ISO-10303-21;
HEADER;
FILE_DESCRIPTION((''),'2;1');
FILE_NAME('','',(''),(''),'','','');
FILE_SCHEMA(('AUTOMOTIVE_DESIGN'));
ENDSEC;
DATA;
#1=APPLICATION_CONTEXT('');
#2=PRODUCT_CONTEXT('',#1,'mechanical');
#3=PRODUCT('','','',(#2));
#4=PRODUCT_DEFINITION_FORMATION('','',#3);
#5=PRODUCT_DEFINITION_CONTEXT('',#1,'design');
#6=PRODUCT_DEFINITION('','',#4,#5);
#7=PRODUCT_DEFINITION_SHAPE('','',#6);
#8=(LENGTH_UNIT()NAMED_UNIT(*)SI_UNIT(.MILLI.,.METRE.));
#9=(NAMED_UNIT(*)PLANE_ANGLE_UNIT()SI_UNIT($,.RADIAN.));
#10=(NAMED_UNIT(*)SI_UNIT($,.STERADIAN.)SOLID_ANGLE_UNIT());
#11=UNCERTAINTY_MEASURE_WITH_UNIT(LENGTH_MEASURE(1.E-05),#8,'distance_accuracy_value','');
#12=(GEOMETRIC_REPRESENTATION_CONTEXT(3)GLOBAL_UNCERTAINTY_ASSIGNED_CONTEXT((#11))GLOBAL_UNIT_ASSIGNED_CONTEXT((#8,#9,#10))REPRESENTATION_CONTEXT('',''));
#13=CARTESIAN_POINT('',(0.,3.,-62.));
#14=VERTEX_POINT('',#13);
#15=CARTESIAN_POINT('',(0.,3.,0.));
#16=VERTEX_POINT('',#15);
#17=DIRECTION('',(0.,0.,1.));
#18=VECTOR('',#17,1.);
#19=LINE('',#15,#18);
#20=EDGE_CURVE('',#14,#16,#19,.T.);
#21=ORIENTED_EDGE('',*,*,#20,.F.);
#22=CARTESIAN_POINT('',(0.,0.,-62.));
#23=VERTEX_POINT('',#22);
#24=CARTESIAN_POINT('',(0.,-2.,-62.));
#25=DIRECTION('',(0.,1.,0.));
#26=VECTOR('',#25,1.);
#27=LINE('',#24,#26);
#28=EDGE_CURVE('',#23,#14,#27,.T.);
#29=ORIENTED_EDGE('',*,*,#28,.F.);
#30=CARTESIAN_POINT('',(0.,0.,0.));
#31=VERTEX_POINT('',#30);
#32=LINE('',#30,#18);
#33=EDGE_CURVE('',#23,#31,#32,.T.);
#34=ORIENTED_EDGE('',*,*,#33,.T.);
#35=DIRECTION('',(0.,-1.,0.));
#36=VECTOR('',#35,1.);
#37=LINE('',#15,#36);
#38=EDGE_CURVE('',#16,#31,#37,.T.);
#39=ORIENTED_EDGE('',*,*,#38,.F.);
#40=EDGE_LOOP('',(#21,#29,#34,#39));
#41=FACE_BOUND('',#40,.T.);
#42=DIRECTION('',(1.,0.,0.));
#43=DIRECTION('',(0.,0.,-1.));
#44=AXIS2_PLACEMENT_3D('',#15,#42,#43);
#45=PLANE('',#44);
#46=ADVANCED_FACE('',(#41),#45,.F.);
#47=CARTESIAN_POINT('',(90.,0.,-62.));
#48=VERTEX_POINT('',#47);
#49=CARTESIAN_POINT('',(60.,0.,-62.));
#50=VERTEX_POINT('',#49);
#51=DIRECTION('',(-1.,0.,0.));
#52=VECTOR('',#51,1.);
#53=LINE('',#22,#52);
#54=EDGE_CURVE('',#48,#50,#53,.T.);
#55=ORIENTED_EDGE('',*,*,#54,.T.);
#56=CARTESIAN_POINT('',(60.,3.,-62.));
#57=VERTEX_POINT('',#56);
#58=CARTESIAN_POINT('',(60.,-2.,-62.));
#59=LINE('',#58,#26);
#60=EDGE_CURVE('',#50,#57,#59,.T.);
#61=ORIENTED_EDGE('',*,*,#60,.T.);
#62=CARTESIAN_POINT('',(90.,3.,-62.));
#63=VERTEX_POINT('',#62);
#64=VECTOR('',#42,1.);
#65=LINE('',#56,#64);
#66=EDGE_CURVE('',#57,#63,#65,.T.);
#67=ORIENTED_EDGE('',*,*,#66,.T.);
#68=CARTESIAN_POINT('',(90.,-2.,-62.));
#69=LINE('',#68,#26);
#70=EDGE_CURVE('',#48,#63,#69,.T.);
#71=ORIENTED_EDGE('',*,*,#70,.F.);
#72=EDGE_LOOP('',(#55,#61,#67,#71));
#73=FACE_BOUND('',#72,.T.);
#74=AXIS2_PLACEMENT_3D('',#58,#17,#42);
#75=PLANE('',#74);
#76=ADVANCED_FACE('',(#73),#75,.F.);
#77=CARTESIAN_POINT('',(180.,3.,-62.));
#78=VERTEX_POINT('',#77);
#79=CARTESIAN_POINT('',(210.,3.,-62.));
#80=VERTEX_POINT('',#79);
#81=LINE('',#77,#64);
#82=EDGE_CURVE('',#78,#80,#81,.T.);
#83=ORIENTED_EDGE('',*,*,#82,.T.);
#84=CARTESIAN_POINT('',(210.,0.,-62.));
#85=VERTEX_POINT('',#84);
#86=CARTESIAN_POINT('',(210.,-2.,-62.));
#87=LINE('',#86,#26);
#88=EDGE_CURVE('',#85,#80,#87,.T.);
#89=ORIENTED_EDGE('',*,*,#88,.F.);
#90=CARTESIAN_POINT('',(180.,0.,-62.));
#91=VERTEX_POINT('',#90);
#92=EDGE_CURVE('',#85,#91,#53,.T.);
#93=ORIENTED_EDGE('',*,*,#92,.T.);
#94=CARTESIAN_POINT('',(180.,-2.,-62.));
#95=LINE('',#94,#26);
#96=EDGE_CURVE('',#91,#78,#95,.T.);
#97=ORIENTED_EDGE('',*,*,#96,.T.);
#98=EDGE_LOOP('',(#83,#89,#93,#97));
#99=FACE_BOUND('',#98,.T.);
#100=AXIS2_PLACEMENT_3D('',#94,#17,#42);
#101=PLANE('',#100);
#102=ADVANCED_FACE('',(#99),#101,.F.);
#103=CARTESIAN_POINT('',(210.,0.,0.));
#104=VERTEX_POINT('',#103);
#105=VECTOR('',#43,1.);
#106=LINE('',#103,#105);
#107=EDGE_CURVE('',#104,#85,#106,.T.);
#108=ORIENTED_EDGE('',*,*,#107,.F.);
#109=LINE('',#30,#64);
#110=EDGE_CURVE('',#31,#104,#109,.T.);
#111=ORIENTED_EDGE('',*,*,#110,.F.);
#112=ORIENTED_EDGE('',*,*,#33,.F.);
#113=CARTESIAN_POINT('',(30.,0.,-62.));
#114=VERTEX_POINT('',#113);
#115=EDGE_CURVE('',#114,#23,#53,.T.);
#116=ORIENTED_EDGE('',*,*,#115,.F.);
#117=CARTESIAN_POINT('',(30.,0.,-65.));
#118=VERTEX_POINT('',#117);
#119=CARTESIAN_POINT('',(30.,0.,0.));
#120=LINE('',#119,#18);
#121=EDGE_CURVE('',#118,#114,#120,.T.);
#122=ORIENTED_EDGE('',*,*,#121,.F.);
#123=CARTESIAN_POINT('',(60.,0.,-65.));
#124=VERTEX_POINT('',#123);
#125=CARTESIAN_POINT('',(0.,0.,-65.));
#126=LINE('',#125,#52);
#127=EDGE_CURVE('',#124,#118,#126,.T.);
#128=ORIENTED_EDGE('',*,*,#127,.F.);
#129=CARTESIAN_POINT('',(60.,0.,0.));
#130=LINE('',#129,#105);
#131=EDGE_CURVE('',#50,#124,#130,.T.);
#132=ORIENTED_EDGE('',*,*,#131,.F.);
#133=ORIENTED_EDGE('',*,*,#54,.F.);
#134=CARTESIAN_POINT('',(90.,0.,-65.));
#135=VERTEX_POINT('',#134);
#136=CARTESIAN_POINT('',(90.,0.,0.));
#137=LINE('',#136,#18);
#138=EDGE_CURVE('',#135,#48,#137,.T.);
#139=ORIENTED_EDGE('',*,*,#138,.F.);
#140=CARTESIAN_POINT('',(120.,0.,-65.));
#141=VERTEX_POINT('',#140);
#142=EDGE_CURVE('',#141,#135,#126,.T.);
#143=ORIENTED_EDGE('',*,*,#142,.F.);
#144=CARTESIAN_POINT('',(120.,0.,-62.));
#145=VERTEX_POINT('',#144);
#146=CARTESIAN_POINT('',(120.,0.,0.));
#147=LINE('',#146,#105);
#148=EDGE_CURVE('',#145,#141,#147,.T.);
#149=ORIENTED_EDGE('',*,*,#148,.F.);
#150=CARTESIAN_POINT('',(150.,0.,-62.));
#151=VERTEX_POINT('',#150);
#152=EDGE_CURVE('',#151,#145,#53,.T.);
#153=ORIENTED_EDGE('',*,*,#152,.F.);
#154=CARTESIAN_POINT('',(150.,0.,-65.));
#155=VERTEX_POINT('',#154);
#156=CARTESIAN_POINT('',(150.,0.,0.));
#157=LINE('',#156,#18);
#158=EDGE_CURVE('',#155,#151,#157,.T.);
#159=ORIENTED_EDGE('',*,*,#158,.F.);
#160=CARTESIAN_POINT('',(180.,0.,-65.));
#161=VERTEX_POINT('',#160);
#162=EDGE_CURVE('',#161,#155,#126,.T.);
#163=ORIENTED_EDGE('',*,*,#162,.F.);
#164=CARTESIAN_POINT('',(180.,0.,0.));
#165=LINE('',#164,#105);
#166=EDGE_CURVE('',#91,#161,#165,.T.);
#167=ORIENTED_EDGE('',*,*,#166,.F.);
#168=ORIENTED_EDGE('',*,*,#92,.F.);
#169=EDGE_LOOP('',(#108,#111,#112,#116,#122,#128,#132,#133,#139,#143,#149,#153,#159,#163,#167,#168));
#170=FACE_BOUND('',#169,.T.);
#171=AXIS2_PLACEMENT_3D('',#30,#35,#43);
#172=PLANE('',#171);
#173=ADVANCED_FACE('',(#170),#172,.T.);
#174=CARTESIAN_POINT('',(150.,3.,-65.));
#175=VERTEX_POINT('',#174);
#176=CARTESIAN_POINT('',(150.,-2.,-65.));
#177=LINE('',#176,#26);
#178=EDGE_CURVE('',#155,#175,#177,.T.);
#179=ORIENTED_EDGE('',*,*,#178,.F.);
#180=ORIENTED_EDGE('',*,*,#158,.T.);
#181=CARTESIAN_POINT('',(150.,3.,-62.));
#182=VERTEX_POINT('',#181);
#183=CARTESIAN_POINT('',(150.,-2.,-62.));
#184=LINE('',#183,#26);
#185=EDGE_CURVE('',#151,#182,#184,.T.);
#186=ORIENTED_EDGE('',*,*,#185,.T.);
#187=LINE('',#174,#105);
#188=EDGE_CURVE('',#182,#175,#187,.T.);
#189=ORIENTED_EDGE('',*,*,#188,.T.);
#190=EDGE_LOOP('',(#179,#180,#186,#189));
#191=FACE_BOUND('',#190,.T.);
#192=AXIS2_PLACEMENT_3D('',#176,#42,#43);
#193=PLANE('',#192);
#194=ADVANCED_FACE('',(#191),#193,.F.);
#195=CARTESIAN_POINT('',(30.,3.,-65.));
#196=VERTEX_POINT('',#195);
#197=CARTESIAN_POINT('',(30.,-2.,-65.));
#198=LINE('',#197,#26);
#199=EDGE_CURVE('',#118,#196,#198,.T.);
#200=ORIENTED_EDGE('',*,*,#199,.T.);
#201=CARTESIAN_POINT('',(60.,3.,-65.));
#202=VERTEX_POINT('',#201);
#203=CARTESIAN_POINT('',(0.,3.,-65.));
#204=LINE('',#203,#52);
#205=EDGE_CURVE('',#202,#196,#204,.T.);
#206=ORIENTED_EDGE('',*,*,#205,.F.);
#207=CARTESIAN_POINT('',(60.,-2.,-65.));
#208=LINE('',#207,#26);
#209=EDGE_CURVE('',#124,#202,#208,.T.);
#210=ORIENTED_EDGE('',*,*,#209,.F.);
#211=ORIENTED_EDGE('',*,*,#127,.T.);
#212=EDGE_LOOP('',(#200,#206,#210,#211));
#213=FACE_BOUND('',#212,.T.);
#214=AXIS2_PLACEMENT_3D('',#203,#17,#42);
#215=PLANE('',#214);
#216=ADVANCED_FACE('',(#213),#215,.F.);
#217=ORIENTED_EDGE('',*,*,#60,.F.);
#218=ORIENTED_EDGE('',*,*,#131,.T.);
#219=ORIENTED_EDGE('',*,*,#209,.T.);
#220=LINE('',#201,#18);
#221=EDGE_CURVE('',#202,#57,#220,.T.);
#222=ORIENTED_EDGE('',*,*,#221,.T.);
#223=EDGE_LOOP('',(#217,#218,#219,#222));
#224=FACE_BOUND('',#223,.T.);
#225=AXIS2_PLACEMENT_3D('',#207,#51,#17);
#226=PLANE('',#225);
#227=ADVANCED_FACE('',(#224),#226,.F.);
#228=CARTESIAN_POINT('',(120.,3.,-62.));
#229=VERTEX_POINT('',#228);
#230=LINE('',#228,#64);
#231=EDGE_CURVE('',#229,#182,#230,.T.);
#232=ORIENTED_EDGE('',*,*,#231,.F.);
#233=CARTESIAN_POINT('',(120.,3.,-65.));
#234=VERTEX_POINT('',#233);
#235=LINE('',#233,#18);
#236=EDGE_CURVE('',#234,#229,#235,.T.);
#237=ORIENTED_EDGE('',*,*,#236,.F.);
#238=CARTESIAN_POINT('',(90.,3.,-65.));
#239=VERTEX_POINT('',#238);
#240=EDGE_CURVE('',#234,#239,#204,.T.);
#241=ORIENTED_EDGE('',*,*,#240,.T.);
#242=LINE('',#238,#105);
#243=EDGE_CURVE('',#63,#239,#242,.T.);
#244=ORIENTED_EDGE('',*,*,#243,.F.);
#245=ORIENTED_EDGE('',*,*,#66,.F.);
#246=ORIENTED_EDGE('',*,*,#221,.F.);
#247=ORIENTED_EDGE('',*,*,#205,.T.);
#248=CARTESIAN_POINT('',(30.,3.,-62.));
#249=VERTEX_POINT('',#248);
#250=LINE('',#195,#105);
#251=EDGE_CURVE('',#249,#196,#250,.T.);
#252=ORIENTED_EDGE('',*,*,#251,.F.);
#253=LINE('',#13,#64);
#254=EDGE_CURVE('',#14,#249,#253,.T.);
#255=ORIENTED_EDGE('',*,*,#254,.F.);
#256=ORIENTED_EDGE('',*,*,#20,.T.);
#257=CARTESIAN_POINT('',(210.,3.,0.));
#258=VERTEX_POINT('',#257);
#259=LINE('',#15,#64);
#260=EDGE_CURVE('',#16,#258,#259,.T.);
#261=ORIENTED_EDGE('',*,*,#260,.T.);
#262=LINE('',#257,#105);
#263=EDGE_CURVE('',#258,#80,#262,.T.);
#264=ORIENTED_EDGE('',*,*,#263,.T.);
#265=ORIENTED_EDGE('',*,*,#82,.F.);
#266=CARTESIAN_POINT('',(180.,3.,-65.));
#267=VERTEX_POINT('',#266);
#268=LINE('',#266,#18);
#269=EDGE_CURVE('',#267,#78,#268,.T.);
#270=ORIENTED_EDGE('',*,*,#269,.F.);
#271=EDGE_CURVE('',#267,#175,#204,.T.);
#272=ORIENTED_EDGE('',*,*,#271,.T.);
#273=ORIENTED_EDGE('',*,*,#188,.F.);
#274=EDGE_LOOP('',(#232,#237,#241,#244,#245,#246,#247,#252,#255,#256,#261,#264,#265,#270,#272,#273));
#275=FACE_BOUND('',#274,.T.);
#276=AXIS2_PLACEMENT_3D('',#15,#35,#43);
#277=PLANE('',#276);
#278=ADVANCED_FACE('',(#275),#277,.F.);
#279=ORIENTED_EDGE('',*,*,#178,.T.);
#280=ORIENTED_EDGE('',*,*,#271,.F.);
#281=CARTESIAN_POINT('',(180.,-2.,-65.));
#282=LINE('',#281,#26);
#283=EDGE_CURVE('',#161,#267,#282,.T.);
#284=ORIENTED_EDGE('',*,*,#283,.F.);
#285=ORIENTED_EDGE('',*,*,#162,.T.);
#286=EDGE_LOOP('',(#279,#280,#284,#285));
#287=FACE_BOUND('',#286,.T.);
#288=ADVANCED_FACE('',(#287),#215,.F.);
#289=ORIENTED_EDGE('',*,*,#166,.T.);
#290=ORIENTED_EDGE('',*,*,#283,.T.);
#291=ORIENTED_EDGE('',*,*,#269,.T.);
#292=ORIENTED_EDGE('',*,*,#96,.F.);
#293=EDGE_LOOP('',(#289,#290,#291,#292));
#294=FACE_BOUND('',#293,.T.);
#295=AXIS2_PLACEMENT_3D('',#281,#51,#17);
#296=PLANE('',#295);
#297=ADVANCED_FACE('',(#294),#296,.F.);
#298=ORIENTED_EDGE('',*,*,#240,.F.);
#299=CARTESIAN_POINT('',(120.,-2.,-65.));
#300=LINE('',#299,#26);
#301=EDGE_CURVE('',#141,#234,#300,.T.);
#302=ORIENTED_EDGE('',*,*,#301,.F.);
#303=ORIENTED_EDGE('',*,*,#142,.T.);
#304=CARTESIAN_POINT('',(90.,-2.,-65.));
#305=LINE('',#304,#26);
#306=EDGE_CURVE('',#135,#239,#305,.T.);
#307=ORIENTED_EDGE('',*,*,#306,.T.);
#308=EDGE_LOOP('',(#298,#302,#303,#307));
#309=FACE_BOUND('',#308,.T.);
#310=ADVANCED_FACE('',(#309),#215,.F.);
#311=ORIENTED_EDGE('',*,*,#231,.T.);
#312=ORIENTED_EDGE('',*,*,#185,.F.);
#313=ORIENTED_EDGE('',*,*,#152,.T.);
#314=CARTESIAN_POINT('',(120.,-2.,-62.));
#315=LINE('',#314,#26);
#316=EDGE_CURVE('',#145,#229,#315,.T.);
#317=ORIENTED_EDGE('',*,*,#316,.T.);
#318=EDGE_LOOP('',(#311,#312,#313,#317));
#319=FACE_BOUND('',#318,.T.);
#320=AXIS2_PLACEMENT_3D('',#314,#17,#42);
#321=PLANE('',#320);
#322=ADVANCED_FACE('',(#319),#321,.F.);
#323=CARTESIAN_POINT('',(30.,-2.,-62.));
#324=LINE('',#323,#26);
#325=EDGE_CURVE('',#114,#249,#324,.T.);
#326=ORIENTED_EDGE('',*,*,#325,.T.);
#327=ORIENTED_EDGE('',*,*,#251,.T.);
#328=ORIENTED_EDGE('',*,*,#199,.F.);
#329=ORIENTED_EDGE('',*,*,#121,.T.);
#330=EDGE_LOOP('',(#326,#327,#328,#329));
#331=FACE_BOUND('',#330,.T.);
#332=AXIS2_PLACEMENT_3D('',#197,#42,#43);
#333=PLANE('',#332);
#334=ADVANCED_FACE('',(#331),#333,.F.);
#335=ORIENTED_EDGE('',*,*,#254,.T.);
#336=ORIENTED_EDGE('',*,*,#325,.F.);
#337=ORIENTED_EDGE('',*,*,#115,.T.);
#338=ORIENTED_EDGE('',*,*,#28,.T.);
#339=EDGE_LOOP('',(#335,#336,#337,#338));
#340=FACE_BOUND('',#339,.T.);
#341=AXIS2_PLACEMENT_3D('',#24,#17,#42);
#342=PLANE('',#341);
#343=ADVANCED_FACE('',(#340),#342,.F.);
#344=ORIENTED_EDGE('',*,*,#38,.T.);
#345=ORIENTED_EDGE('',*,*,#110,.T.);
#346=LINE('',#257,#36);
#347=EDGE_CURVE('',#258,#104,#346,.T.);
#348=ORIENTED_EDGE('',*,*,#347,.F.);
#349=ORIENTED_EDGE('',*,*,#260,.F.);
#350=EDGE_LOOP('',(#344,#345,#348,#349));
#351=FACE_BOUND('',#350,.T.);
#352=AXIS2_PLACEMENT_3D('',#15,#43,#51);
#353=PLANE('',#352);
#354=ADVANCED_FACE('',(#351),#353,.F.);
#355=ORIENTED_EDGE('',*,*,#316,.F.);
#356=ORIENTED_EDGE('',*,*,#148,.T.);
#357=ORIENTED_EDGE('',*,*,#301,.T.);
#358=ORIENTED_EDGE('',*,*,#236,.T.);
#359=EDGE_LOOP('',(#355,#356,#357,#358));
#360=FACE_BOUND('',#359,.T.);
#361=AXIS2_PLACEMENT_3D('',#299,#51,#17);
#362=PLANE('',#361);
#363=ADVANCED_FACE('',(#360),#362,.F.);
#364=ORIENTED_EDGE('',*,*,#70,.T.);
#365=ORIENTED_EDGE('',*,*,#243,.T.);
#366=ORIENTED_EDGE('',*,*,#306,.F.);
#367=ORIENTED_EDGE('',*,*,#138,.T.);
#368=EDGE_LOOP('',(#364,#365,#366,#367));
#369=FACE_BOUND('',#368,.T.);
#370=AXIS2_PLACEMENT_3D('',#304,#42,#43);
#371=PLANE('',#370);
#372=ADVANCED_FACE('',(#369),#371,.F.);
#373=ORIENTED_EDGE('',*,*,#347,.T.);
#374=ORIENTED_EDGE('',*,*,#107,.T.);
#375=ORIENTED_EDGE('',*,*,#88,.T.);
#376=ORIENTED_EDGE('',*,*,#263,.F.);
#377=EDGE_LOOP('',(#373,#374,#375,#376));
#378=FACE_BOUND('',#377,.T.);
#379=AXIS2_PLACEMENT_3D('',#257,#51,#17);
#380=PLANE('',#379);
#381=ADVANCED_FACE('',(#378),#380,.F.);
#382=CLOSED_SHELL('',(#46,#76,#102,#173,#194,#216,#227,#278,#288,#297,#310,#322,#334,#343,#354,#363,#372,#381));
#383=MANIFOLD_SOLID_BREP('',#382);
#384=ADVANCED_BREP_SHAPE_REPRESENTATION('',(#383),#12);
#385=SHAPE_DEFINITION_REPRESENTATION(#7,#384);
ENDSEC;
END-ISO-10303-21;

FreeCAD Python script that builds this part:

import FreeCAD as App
import Part
import Sketcher
from FreeCAD import Vector


def add_polygon(sketch, points):
    """Adds a closed chain of lines whose ends are joined by coincident constraints."""
    first, n = sketch.GeometryCount, len(points)
    for a, b in zip(points, points[1:] + points[:1]):
        sketch.addGeometry(Part.LineSegment(App.Vector(*a, 0), App.Vector(*b, 0)), False)
    for i in range(n):
        sketch.addConstraint(Sketcher.Constraint("Coincident", first + i, 2, first + (i + 1) % n, 1))

doc = App.newDocument("Part")
params = doc.addObject("Spreadsheet::Sheet", "Params")
for row, (alias, value) in enumerate([
    ("sketch1_width", "210 mm"),
    ("sketch1_height", "65 mm"),
    ("pad1_length", "3 mm"),
    ("sketch2_width", "30 mm"),
    ("sketch2_height", "3 mm"),
    ("pocket1_length", "5 mm"),
], start=1):
    params.set(f"A{row}", alias)
    params.set(f"B{row}", "=" + value)
    params.setAlias(f"B{row}", alias)

body = doc.addObject("PartDesign::Body", "Body")

# Sketch on XZ plane
sketch1 = body.newObject("Sketcher::SketchObject", "Sketch")
sketch1.AttachmentSupport = (doc.getObject("XZ_Plane"), [""])
sketch1.MapMode = "FlatFace"
add_polygon(sketch1, [(0, -65), (0, 0), (210, 0), (210, -65)])  # lines 0-3
sketch1.addConstraint([
    Sketcher.Constraint("Vertical", 0),
    Sketcher.Constraint("Horizontal", 1),
    Sketcher.Constraint("Vertical", 2),
    Sketcher.Constraint("Horizontal", 3),
    Sketcher.Constraint("Coincident", 0, 2, -1, 1),
    Sketcher.Constraint("DistanceX", 1, 1, 1, 2, 210.0),
    Sketcher.Constraint("DistanceY", 0, 1, 0, 2, 65.0),
])
sketch1.setExpression("Constraints[9]", "Params.sketch1_width")
sketch1.setExpression("Constraints[10]", "Params.sketch1_height")
pad1 = body.newObject("PartDesign::Pad", "Pad")
pad1.Profile = sketch1
pad1.setExpression("Length", "Params.pad1_length")
pad1.Reversed = True

# Sketch on XZ plane
sketch2 = body.newObject("Sketcher::SketchObject", "Sketch001")
sketch2.AttachmentSupport = (doc.getObject("XZ_Plane"), [""])
sketch2.MapMode = "FlatFace"
sketch2.AttachmentOffset = App.Placement(Vector(0, 0, -3), App.Rotation())
add_polygon(sketch2, [(0, -65), (0, -62), (30, -62), (30, -65)])  # lines 0-3
add_polygon(sketch2, [(60, -65), (60, -62), (90, -62), (90, -65)])  # lines 4-7
add_polygon(sketch2, [(120, -65), (120, -62), (150, -62), (150, -65)])  # lines 8-11
add_polygon(sketch2, [(180, -65), (180, -62), (210, -62), (210, -65)])  # lines 12-15
sketch2.addConstraint([
    Sketcher.Constraint("Vertical", 0),
    Sketcher.Constraint("Horizontal", 1),
    Sketcher.Constraint("Vertical", 2),
    Sketcher.Constraint("Horizontal", 3),
    Sketcher.Constraint("Vertical", 4),
    Sketcher.Constraint("Horizontal", 5),
    Sketcher.Constraint("Vertical", 6),
    Sketcher.Constraint("Horizontal", 7),
    Sketcher.Constraint("Vertical", 8),
    Sketcher.Constraint("Horizontal", 9),
    Sketcher.Constraint("Vertical", 10),
    Sketcher.Constraint("Horizontal", 11),
    Sketcher.Constraint("Vertical", 12),
    Sketcher.Constraint("Horizontal", 13),
    Sketcher.Constraint("Vertical", 14),
    Sketcher.Constraint("Horizontal", 15),
    Sketcher.Constraint("PointOnObject", 0, 2, -2),
    Sketcher.Constraint("Horizontal", 1, 2, 4, 2),
    Sketcher.Constraint("Horizontal", 3, 2, 6, 2),
    Sketcher.Constraint("Horizontal", 5, 2, 8, 2),
    Sketcher.Constraint("Horizontal", 7, 2, 10, 2),
    Sketcher.Constraint("Horizontal", 9, 2, 12, 2),
    Sketcher.Constraint("Horizontal", 11, 2, 14, 2),
    Sketcher.Constraint("Equal", 3, 5),
    Sketcher.Constraint("Equal", 7, 9),
    Sketcher.Constraint("Equal", 11, 13),
    Sketcher.Constraint("DistanceX", 1, 1, 1, 2, 30.0),
    Sketcher.Constraint("DistanceY", 0, 1, 0, 2, 3.0),
    Sketcher.Constraint("DistanceY", 0, 2, -1, 1, 62.0),
    Sketcher.Constraint("DistanceX", -1, 1, 4, 2, 60.0),
    Sketcher.Constraint("DistanceX", -1, 1, 8, 2, 120.0),
    Sketcher.Constraint("DistanceX", -1, 1, 12, 2, 180.0),
])
sketch2.setExpression("Constraints[42]", "Params.sketch2_width")
sketch2.setExpression("Constraints[43]", "Params.sketch2_height")
pocket1 = body.newObject("PartDesign::Pocket", "Pocket")
pocket1.Profile = sketch2
pocket1.setExpression("Length", "Params.pocket1_length")
pocket1.Reversed = True

doc.recompute()
